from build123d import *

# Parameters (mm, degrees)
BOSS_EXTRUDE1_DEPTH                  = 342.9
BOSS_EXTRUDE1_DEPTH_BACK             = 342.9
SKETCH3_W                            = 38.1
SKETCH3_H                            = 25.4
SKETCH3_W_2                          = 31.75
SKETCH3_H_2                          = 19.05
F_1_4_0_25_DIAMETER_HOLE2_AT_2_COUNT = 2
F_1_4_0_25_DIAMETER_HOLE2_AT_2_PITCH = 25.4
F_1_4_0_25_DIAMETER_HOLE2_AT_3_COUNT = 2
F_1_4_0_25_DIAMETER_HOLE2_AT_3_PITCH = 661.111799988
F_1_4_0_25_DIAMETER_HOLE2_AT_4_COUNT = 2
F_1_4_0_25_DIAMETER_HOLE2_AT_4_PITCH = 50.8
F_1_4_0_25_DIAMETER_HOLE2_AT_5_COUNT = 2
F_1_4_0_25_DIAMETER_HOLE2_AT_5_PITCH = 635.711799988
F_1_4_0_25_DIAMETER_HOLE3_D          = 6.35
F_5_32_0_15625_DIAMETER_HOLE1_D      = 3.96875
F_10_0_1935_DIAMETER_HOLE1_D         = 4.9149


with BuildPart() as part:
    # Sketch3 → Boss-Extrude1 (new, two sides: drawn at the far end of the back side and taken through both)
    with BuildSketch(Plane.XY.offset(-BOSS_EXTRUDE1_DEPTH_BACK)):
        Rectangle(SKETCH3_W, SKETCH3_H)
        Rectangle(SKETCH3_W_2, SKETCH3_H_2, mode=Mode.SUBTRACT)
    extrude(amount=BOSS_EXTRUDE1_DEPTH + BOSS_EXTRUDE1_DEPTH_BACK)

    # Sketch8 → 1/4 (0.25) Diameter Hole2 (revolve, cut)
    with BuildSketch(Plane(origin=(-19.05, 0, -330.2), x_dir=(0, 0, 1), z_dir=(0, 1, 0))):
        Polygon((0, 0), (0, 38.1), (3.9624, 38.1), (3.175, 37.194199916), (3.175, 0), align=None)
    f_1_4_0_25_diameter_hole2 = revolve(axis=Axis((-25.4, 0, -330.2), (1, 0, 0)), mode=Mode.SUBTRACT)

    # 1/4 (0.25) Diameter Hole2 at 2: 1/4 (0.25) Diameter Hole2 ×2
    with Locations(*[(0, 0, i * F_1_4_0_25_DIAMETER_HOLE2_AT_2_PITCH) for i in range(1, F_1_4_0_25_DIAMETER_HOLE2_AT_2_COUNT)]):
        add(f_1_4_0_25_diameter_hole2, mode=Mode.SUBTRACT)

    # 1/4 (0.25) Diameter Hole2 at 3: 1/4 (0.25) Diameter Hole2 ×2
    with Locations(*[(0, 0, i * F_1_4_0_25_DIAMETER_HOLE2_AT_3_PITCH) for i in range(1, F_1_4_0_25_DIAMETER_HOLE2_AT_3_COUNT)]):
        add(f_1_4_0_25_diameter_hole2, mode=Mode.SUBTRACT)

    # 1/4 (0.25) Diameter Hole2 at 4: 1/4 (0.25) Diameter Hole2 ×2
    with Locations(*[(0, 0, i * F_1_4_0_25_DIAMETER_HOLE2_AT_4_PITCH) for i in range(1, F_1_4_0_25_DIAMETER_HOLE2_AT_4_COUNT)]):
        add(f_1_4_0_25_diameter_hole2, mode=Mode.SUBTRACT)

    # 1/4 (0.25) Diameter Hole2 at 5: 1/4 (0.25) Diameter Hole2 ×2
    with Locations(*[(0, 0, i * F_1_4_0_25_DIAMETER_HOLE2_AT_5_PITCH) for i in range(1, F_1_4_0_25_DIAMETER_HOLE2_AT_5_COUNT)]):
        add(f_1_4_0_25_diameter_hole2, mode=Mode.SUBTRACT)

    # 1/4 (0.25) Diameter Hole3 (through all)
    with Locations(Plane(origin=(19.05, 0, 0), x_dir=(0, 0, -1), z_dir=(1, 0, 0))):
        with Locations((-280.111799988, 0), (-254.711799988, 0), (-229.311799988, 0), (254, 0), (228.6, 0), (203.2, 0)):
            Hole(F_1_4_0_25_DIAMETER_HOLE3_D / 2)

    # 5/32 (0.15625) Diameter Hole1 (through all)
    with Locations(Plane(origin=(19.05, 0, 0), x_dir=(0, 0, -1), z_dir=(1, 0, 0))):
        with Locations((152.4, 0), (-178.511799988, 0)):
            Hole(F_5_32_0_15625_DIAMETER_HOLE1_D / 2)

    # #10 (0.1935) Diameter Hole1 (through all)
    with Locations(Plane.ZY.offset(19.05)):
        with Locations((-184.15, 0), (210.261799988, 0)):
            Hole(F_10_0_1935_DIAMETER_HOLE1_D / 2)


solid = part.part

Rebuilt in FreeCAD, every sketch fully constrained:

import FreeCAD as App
import Part
import Sketcher
Q = App.Units.Quantity

doc = App.newDocument("Part")
body = doc.addObject("PartDesign::Body", "Body")

sketch1 = body.newObject("Sketcher::SketchObject", "Sketch")
sketch1.AttachmentSupport = (doc.getObject("XY_Plane"), [""])
sketch1.MapMode = "FlatFace"
sketch1.addGeometry([
    Part.LineSegment(App.Vector(-19, 13, 0), App.Vector(-19, -13, 0)),
    Part.LineSegment(App.Vector(-19, -13, 0), App.Vector(19, -13, 0)),
    Part.LineSegment(App.Vector(19, -13, 0), App.Vector(19, 13, 0)),
    Part.LineSegment(App.Vector(19, 13, 0), App.Vector(-19, 13, 0)),
    Part.LineSegment(App.Vector(16, -10, 0), App.Vector(-16, -10, 0)),
    Part.LineSegment(App.Vector(-16, -10, 0), App.Vector(-16, 10, 0)),
    Part.LineSegment(App.Vector(-16, 10, 0), App.Vector(16, 10, 0)),
    Part.LineSegment(App.Vector(16, 10, 0), App.Vector(16, -10, 0)),
], False)
sketch1.addConstraint([
    Sketcher.Constraint("Coincident", 0, 2, 1, 1),
    Sketcher.Constraint("Coincident", 1, 2, 2, 1),
    Sketcher.Constraint("Coincident", 2, 2, 3, 1),
    Sketcher.Constraint("Coincident", 3, 2, 0, 1),
    Sketcher.Constraint("Coincident", 4, 2, 5, 1),
    Sketcher.Constraint("Coincident", 5, 2, 6, 1),
    Sketcher.Constraint("Coincident", 6, 2, 7, 1),
    Sketcher.Constraint("Coincident", 7, 2, 4, 1),
    Sketcher.Constraint("Vertical", 0),
    Sketcher.Constraint("Horizontal", 1),
    Sketcher.Constraint("Vertical", 2),
    Sketcher.Constraint("Horizontal", 3),
    Sketcher.Constraint("Horizontal", 4),
    Sketcher.Constraint("Vertical", 5),
    Sketcher.Constraint("Horizontal", 6),
    Sketcher.Constraint("Vertical", 7),
    Sketcher.Constraint("Symmetric", 0, 2, 2, 2, -1, 1),
    Sketcher.Constraint("Symmetric", 4, 2, 6, 2, -1, 1),
    Sketcher.Constraint("DistanceY", 0, 2, 0, 1, Q("1 in")),
    Sketcher.Constraint("DistanceX", 1, 1, 1, 2, Q("1.5 in")),
    Sketcher.Constraint("DistanceX", 4, 2, 4, 1, Q("1.25 in")),
    Sketcher.Constraint("DistanceY", 5, 1, 5, 2, Q("0.75 in")),
])
pad1 = body.newObject("PartDesign::Pad", "Pad")
pad1.Profile = sketch1
pad1.Type = "TwoLengths"
pad1.Length = Q("13.5 in")
pad1.Length2 = Q("13.5 in")

sketch2 = body.newObject("Sketcher::SketchObject", "Sketch001")
sketch2.AttachmentSupport = (doc.getObject("XZ_Plane"), [""])
sketch2.MapMode = "FlatFace"
sketch2.addGeometry([
    Part.LineSegment(App.Vector(19.1, -330.2, 0), App.Vector(-19.1, -330.2, 0)),
    Part.LineSegment(App.Vector(-19.1, -330.2, 0), App.Vector(-19.1, -327, 0)),
    Part.LineSegment(App.Vector(-19.1, -327, 0), App.Vector(18.1, -327, 0)),
    Part.LineSegment(App.Vector(18.1, -327, 0), App.Vector(19.1, -326.2, 0)),
    Part.LineSegment(App.Vector(19.1, -326.2, 0), App.Vector(19.1, -330.2, 0)),
], False)
sketch2.addGeometry(Part.LineSegment(App.Vector(-19.1, -330.2, 0), App.Vector(19.1, -330.2, 0)), True)
sketch2.addConstraint([
    Sketcher.Constraint("Coincident", 0, 2, 1, 1),
    Sketcher.Constraint("Coincident", 1, 2, 2, 1),
    Sketcher.Constraint("Coincident", 2, 2, 3, 1),
    Sketcher.Constraint("Coincident", 3, 2, 4, 1),
    Sketcher.Constraint("Coincident", 4, 2, 0, 1),
    Sketcher.Constraint("Horizontal", 0),
    Sketcher.Constraint("Vertical", 1),
    Sketcher.Constraint("Horizontal", 2),
    Sketcher.Constraint("Vertical", 4),
    Sketcher.Constraint("Horizontal", 5),
    Sketcher.Constraint("Coincident", 5, 1, 0, 2),
    Sketcher.Constraint("Vertical", 3, 2, 5, 2),
    Sketcher.Constraint("DistanceX", 0, 2, 0, 1, Q("1.5 in")),
    Sketcher.Constraint("DistanceY", 0, 2, -1, 1, Q("13 in")),
    Sketcher.Constraint("Angle", 3, Q("41 deg")),
    Sketcher.Constraint("DistanceY", 1, 1, 1, 2, Q("0.125 in")),
    Sketcher.Constraint("DistanceY", 4, 2, 4, 1, Q("0.156 in")),
    Sketcher.Constraint("DistanceX", 0, 2, -1, 1, Q("0.75 in")),
])
groove = body.newObject("PartDesign::Groove", "Groove")
groove.Profile = sketch2
groove.ReferenceAxis = (sketch2, ["Axis0"])
groove.Angle = 360
doc.recompute()

linearpattern = body.newObject("PartDesign::LinearPattern", "LinearPattern")
linearpattern.Originals = [groove]
linearpattern.Direction = (doc.getObject("Z_Axis"), [""])
linearpattern.Mode = "offset"
linearpattern.Offset = Q("1 in")
linearpattern.Occurrences = 2
body.Tip = linearpattern
doc.recompute()

linearpattern2 = body.newObject("PartDesign::LinearPattern", "LinearPattern001")
linearpattern2.Originals = [groove]
linearpattern2.Direction = (doc.getObject("Z_Axis"), [""])
linearpattern2.Mode = "offset"
linearpattern2.Offset = 661.1118
linearpattern2.Occurrences = 2
body.Tip = linearpattern2
doc.recompute()

linearpattern3 = body.newObject("PartDesign::LinearPattern", "LinearPattern002")
linearpattern3.Originals = [groove]
linearpattern3.Direction = (doc.getObject("Z_Axis"), [""])
linearpattern3.Mode = "offset"
linearpattern3.Offset = Q("2 in")
linearpattern3.Occurrences = 2
body.Tip = linearpattern3
doc.recompute()

linearpattern4 = body.newObject("PartDesign::LinearPattern", "LinearPattern003")
linearpattern4.Originals = [groove]
linearpattern4.Direction = (doc.getObject("Z_Axis"), [""])
linearpattern4.Mode = "offset"
linearpattern4.Offset = 635.7118
linearpattern4.Occurrences = 2
body.Tip = linearpattern4

sketch3 = body.newObject("Sketcher::SketchObject", "Sketch002")
sketch3.AttachmentSupport = (doc.getObject("YZ_Plane"), [""])
sketch3.MapMode = "FlatFace"
sketch3.AttachmentOffset = App.Placement(App.Vector(0, 0, 0.75 * 25.4), App.Rotation())
sketch3.addGeometry([
    Part.Circle(App.Vector(0, 280.1, 0), App.Vector(0, 0, 1), 3.2),
    Part.Circle(App.Vector(0, 254.7, 0), App.Vector(0, 0, 1), 3.2),
    Part.Circle(App.Vector(0, 229.3, 0), App.Vector(0, 0, 1), 3.2),
    Part.Circle(App.Vector(0, -254, 0), App.Vector(0, 0, 1), 3.2),
    Part.Circle(App.Vector(0, -228.6, 0), App.Vector(0, 0, 1), 3.2),
    Part.Circle(App.Vector(0, -203.2, 0), App.Vector(0, 0, 1), 3.2),
], False)
sketch3.addConstraint([
    Sketcher.Constraint("Equal", 0, 1),
    Sketcher.Constraint("Equal", 1, 2),
    Sketcher.Constraint("Equal", 2, 3),
    Sketcher.Constraint("Equal", 3, 4),
    Sketcher.Constraint("Equal", 4, 5),
    Sketcher.Constraint("PointOnObject", 0, 3, -2),
    Sketcher.Constraint("PointOnObject", 1, 3, -2),
    Sketcher.Constraint("PointOnObject", 2, 3, -2),
    Sketcher.Constraint("PointOnObject", 3, 3, -2),
    Sketcher.Constraint("PointOnObject", 4, 3, -2),
    Sketcher.Constraint("PointOnObject", 5, 3, -2),
    Sketcher.Constraint("Diameter", 0, Q("0.25 in")),
    Sketcher.Constraint("DistanceY", 3, 3, -1, 1, Q("10 in")),
    Sketcher.Constraint("DistanceY", 4, 3, -1, 1, Q("9 in")),
    Sketcher.Constraint("DistanceY", 5, 3, -1, 1, Q("8 in")),
    Sketcher.Constraint("DistanceY", 1, 3, 0, 3, Q("1 in")),
    Sketcher.Constraint("DistanceY", 2, 3, 1, 3, Q("1 in")),
    Sketcher.Constraint("DistanceY", -1, 1, 0, 3, 280.1118),
])
doc.recompute()
hole = body.newObject("PartDesign::Hole", "Hole")
hole.Profile = sketch3
hole.ThreadType = "None"
hole.Diameter = Q("0.25 in")
hole.DepthType = "ThroughAll"

sketch4 = body.newObject("Sketcher::SketchObject", "Sketch003")
sketch4.AttachmentSupport = (doc.getObject("YZ_Plane"), [""])
sketch4.MapMode = "FlatFace"
sketch4.AttachmentOffset = App.Placement(App.Vector(0, 0, 0.75 * 25.4), App.Rotation())
sketch4.addGeometry([
    Part.Circle(App.Vector(0, -152.4, 0), App.Vector(0, 0, 1), 2),
    Part.Circle(App.Vector(0, 178.5, 0), App.Vector(0, 0, 1), 2),
], False)
sketch4.addConstraint([
    Sketcher.Constraint("Equal", 0, 1),
    Sketcher.Constraint("PointOnObject", 0, 3, -2),
    Sketcher.Constraint("PointOnObject", 1, 3, -2),
    Sketcher.Constraint("Diameter", 0, Q("0.15625 in")),
    Sketcher.Constraint("DistanceY", 0, 3, -1, 1, Q("6 in")),
    Sketcher.Constraint("DistanceY", -1, 1, 1, 3, 178.5118),
])
doc.recompute()
hole2 = body.newObject("PartDesign::Hole", "Hole001")
hole2.Profile = sketch4
hole2.ThreadType = "None"
hole2.Diameter = Q("0.15625 in")
hole2.DepthType = "ThroughAll"

sketch5 = body.newObject("Sketcher::SketchObject", "Sketch004")
sketch5.AttachmentSupport = (doc.getObject("YZ_Plane"), [""])
sketch5.MapMode = "FlatFace"
sketch5.AttachmentOffset = App.Placement(App.Vector(0, 0, -0.75 * 25.4), App.Rotation())
sketch5.addGeometry([
    Part.Circle(App.Vector(0, -184.2, 0), App.Vector(0, 0, 1), 2.5),
    Part.Circle(App.Vector(0, 210.3, 0), App.Vector(0, 0, 1), 2.5),
], False)
sketch5.addConstraint([
    Sketcher.Constraint("Equal", 0, 1),
    Sketcher.Constraint("PointOnObject", 0, 3, -2),
    Sketcher.Constraint("PointOnObject", 1, 3, -2),
    Sketcher.Constraint("Diameter", 0, Q("0.1935 in")),
    Sketcher.Constraint("DistanceY", 0, 3, -1, 1, Q("7.25 in")),
    Sketcher.Constraint("DistanceY", -1, 1, 1, 3, 210.2618),
])
doc.recompute()
hole3 = body.newObject("PartDesign::Hole", "Hole002")
hole3.Profile = sketch5
hole3.ThreadType = "None"
hole3.Diameter = Q("0.1935 in")
hole3.DepthType = "ThroughAll"
hole3.Reversed = True

doc.recompute()
